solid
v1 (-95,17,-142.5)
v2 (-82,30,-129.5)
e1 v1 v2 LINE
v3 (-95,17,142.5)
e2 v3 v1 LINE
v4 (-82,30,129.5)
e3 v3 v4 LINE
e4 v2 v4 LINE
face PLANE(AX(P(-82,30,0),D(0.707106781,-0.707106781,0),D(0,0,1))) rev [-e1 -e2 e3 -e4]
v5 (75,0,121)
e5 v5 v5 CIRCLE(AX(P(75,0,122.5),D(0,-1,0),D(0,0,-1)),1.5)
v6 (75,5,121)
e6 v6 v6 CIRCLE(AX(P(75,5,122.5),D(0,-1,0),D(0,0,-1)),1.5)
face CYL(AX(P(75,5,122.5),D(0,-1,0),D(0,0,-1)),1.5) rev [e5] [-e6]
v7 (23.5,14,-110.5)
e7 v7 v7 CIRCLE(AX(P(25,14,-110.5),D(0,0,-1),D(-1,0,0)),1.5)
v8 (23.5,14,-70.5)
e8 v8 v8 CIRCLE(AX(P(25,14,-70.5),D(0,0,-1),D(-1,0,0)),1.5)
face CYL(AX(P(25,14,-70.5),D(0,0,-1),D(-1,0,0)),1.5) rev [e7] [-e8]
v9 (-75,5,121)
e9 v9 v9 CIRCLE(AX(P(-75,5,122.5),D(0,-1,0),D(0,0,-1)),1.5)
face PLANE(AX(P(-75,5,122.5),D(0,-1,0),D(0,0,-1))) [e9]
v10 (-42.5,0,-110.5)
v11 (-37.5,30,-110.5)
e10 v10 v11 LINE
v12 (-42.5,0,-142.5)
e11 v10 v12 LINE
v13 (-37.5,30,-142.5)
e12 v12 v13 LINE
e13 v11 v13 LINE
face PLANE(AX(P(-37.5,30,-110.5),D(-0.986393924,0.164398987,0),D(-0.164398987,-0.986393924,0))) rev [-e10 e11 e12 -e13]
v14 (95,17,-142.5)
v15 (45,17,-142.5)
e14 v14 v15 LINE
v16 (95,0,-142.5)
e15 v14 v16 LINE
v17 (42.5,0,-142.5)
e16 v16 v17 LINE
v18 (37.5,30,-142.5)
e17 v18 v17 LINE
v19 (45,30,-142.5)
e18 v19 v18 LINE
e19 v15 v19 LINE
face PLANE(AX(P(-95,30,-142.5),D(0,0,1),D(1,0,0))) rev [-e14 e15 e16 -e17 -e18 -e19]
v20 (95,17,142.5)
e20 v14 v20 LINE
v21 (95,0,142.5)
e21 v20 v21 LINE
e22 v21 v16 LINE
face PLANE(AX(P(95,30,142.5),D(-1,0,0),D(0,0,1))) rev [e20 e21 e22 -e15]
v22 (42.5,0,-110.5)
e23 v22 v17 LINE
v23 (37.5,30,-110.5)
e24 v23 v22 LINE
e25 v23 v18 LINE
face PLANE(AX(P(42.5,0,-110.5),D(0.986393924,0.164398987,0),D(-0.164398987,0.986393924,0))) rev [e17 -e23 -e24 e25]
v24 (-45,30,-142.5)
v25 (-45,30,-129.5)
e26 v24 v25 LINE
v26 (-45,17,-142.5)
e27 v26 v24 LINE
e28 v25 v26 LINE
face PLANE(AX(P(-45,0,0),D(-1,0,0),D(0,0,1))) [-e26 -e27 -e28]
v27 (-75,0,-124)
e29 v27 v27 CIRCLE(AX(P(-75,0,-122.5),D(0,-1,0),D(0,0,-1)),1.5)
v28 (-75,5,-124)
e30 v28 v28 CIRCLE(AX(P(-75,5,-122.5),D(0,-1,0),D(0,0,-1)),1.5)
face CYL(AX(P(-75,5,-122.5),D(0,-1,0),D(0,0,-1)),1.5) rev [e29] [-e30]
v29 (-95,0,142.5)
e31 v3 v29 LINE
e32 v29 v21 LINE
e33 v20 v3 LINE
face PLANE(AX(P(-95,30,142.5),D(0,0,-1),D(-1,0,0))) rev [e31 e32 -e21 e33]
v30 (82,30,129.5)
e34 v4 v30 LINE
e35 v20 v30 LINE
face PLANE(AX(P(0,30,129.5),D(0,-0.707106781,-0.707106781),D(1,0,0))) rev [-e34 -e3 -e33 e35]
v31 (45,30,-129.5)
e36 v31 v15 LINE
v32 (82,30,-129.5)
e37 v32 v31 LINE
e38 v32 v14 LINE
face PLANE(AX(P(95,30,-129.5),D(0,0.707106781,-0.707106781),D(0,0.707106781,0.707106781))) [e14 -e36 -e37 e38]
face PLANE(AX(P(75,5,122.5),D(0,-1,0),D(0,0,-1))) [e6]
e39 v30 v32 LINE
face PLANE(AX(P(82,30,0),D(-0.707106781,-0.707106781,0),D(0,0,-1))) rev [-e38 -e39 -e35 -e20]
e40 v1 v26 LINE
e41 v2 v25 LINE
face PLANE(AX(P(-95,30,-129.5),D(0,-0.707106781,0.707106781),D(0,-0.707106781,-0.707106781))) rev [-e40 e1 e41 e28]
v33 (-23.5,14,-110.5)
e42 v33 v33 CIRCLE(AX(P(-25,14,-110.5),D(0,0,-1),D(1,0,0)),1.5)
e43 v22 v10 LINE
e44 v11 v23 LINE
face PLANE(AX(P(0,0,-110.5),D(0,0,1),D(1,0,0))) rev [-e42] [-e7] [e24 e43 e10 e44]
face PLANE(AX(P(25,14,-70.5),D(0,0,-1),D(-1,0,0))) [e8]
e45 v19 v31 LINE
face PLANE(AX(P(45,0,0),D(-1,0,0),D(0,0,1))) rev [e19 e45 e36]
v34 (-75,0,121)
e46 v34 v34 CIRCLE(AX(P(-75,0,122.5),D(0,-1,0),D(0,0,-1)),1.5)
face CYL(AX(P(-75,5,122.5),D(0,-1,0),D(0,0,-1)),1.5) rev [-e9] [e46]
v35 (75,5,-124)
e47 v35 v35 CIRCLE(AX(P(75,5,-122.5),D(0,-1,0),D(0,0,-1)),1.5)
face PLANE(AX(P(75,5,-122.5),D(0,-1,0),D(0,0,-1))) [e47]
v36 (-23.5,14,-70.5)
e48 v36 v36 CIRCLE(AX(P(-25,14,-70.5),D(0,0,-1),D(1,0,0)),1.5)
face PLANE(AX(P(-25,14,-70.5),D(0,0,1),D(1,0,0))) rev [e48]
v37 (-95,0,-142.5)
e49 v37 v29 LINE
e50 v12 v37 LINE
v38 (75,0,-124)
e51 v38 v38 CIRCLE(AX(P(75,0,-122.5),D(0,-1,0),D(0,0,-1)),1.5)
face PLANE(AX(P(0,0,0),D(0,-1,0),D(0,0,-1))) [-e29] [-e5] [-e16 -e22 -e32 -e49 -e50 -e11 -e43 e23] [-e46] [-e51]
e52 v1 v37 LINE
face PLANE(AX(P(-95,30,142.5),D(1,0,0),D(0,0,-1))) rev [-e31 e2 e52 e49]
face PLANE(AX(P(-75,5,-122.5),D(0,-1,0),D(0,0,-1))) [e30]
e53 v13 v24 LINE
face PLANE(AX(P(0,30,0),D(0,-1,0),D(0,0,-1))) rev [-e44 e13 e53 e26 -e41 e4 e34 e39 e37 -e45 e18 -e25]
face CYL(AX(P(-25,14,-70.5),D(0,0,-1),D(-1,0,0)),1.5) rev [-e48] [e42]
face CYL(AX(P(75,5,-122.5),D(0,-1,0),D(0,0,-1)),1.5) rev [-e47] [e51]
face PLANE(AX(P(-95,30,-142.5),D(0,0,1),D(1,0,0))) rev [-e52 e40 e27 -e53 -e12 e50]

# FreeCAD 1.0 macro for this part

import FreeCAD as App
import Part
import Sketcher
from FreeCAD import Vector
Q = App.Units.Quantity


def edges_at(feature, points):
    """Names of the edges that pass closest to the given points."""
    edges = feature.Shape.Edges
    near = lambda p: min(range(len(edges)), key=lambda i: edges[i].distToShape(Part.Vertex(*p))[0])
    return sorted({f"Edge{near(p) + 1}" for p in points})


def add_polygon(sketch, points):
    """Adds a closed chain of lines whose ends are joined by coincident constraints."""
    first, n = sketch.GeometryCount, len(points)
    for a, b in zip(points, points[1:] + points[:1]):
        sketch.addGeometry(Part.LineSegment(App.Vector(*a, 0), App.Vector(*b, 0)), False)
    for i in range(n):
        sketch.addConstraint(Sketcher.Constraint("Coincident", first + i, 2, first + (i + 1) % n, 1))

doc = App.newDocument("Part")
params = doc.addObject("Spreadsheet::Sheet", "Params")
for row, (alias, value) in enumerate([
    ("sketch1_width", "190 mm"),
    ("sketch1_height", "285 mm"),
    ("pad1_length", "30 mm"),
    ("sketch2_width", "75 mm"),
    ("sketch2_width2", "85 mm"),
    ("pocket1_length", "32 mm"),
    ("sketch3_diameter", "3 mm"),
    ("pocket2_length", "40 mm"),
    ("sketch4_width", "13 mm"),
    ("sketch5_width", "13 mm"),
    ("chamfer_size", "13 mm"),
    ("sketch6_diameter", "3 mm"),
    ("pocket5_length", "5 mm"),
], start=1):
    params.set(f"A{row}", alias)
    params.set(f"B{row}", "=" + value)
    params.setAlias(f"B{row}", alias)

body = doc.addObject("PartDesign::Body", "Body")

sketch1 = body.newObject("Sketcher::SketchObject", "Sketch")
sketch1.AttachmentSupport = (doc.getObject("XZ_Plane"), [""])
sketch1.MapMode = "FlatFace"
add_polygon(sketch1, [(-95, -142), (-95, 142), (95, 142), (95, -142)])
sketch1.addConstraint(Sketcher.Constraint("Vertical", 0))
sketch1.addConstraint(Sketcher.Constraint("Horizontal", 1))
sketch1.addConstraint(Sketcher.Constraint("Vertical", 2))
sketch1.addConstraint(Sketcher.Constraint("Horizontal", 3))
sketch1.addConstraint(Sketcher.Constraint("Symmetric", 0, 2, 2, 2, -1, 1))
sketch1.addConstraint(Sketcher.Constraint("DistanceX", 1, 1, 1, 2, Q("190 mm")))
sketch1.addConstraint(Sketcher.Constraint("DistanceY", 0, 1, 0, 2, Q("285 mm")))
sketch1.setExpression("Constraints[9]", "Params.sketch1_width")
sketch1.setExpression("Constraints[10]", "Params.sketch1_height")
pad1 = body.newObject("PartDesign::Pad", "Pad")
pad1.Profile = sketch1
pad1.setExpression("Length", "Params.pad1_length")
pad1.Reversed = True

sketch2 = body.newObject("Sketcher::SketchObject", "Sketch001")
sketch2.AttachmentSupport = (doc.getObject("XY_Plane"), [""])
sketch2.MapMode = "FlatFace"
sketch2.AttachmentOffset = App.Placement(Vector(0, 0, -142.5), App.Rotation())
add_polygon(sketch2, [(-38, 30), (38, 30), (42, 0), (-42, 0)])
sketch2.addConstraint(Sketcher.Constraint("Horizontal", 0))
sketch2.addConstraint(Sketcher.Constraint("Horizontal", 2))
sketch2.addConstraint(Sketcher.Constraint("Symmetric", 1, 2, 2, 2, -1, 1))
sketch2.addConstraint(Sketcher.Constraint("Equal", 1, 3))
sketch2.addConstraint(Sketcher.Constraint("DistanceX", 0, 1, 0, 2, Q("75 mm")))
sketch2.addConstraint(Sketcher.Constraint("DistanceX", 2, 2, 2, 1, Q("85 mm")))
sketch2.addConstraint(Sketcher.Constraint("DistanceY", -1, 1, 0, 2, Q("30 mm")))
sketch2.setExpression("Constraints[8]", "Params.sketch2_width")
sketch2.setExpression("Constraints[9]", "Params.sketch2_width2")
pocket1 = body.newObject("PartDesign::Pocket", "Pocket")
pocket1.Profile = sketch2
pocket1.setExpression("Length", "Params.pocket1_length")
pocket1.Reversed = True

sketch3 = body.newObject("Sketcher::SketchObject", "Sketch002")
sketch3.AttachmentSupport = (doc.getObject("XY_Plane"), [""])
sketch3.MapMode = "FlatFace"
sketch3.AttachmentOffset = App.Placement(Vector(0, 0, -110.5), App.Rotation())
sketch3.addGeometry(Part.Circle(Vector(25, 14, 0), Vector(0, 0, 1), 1.5), False)
sketch3.addGeometry(Part.Circle(Vector(-25, 14, 0), Vector(0, 0, 1), 1.5), False)
sketch3.addConstraint(Sketcher.Constraint("Equal", 0, 1))
sketch3.addConstraint(Sketcher.Constraint("Symmetric", 0, 3, 1, 3, -2))
sketch3.addConstraint(Sketcher.Constraint("Diameter", 0, Q("3 mm")))
sketch3.addConstraint(Sketcher.Constraint("DistanceX", -1, 1, 0, 3, Q("25 mm")))
sketch3.addConstraint(Sketcher.Constraint("DistanceY", -1, 1, 0, 3, Q("14 mm")))
sketch3.setExpression("Constraints[2]", "Params.sketch3_diameter")
pocket2 = body.newObject("PartDesign::Pocket", "Pocket001")
pocket2.Profile = sketch3
pocket2.setExpression("Length", "Params.pocket2_length")
pocket2.Reversed = True

sketch4 = body.newObject("Sketcher::SketchObject", "Sketch003")
sketch4.AttachmentSupport = (doc.getObject("YZ_Plane"), [""])
sketch4.MapMode = "FlatFace"
sketch4.AttachmentOffset = App.Placement(Vector(0, 0, 45), App.Rotation())
add_polygon(sketch4, [(30, -130), (17, -142), (30, -142)])
sketch4.addConstraint(Sketcher.Constraint("Horizontal", 1))
sketch4.addConstraint(Sketcher.Constraint("Vertical", 2))
sketch4.addConstraint(Sketcher.Constraint("Equal", 1, 2))
sketch4.addConstraint(Sketcher.Constraint("DistanceX", 1, 1, 1, 2, Q("13 mm")))
sketch4.addConstraint(Sketcher.Constraint("DistanceX", -1, 1, 0, 2, Q("17 mm")))
sketch4.addConstraint(Sketcher.Constraint("DistanceY", 0, 2, -1, 1, Q("142.5 mm")))
sketch4.setExpression("Constraints[6]", "Params.sketch4_width")
pocket3 = body.newObject("PartDesign::Pocket", "Pocket002")
pocket3.Profile = sketch4
pocket3.Type = "ThroughAll"
pocket3.Reversed = True

sketch5 = body.newObject("Sketcher::SketchObject", "Sketch004")
sketch5.AttachmentSupport = (doc.getObject("YZ_Plane"), [""])
sketch5.MapMode = "FlatFace"
sketch5.AttachmentOffset = App.Placement(Vector(0, 0, -45), App.Rotation())
add_polygon(sketch5, [(30, -130), (17, -142), (30, -142)])
sketch5.addConstraint(Sketcher.Constraint("Horizontal", 1))
sketch5.addConstraint(Sketcher.Constraint("Vertical", 2))
sketch5.addConstraint(Sketcher.Constraint("Equal", 1, 2))
sketch5.addConstraint(Sketcher.Constraint("DistanceX", 1, 1, 1, 2, Q("13 mm")))
sketch5.addConstraint(Sketcher.Constraint("DistanceX", -1, 1, 0, 2, Q("17 mm")))
sketch5.addConstraint(Sketcher.Constraint("DistanceY", 0, 2, -1, 1, Q("142.5 mm")))
sketch5.setExpression("Constraints[6]", "Params.sketch5_width")
pocket4 = body.newObject("PartDesign::Pocket", "Pocket003")
pocket4.Profile = sketch5
pocket4.Type = "ThroughAll"
doc.recompute()

chamfer = body.newObject("PartDesign::Chamfer", "Chamfer")
chamfer.Base = (pocket4, edges_at(pocket4, [(-95, 30, 6.5), (0, 30, 142.5), (95, 30, 6.5)]))
chamfer.setExpression("Size", "Params.chamfer_size")

sketch6 = body.newObject("Sketcher::SketchObject", "Sketch005")
sketch6.AttachmentSupport = (doc.getObject("XZ_Plane"), [""])
sketch6.MapMode = "FlatFace"
sketch6.addGeometry(Part.Circle(Vector(-75, 122.5, 0), Vector(0, 0, 1), 1.5), False)
sketch6.addGeometry(Part.Circle(Vector(75, 122.5, 0), Vector(0, 0, 1), 1.5), False)
sketch6.addGeometry(Part.Circle(Vector(-75, -122.5, 0), Vector(0, 0, 1), 1.5), False)
sketch6.addGeometry(Part.Circle(Vector(75, -122.5, 0), Vector(0, 0, 1), 1.5), False)
sketch6.addConstraint(Sketcher.Constraint("Equal", 0, 1))
sketch6.addConstraint(Sketcher.Constraint("Equal", 1, 2))
sketch6.addConstraint(Sketcher.Constraint("Equal", 2, 3))
sketch6.addConstraint(Sketcher.Constraint("Symmetric", 1, 3, 2, 3, -1, 1))
sketch6.addConstraint(Sketcher.Constraint("Symmetric", 0, 3, 3, 3, -1, 1))
sketch6.addConstraint(Sketcher.Constraint("Symmetric", 0, 3, 1, 3, -2))
sketch6.addConstraint(Sketcher.Constraint("Diameter", 0, Q("3 mm")))
sketch6.addConstraint(Sketcher.Constraint("DistanceX", 0, 3, -1, 1, Q("75 mm")))
sketch6.addConstraint(Sketcher.Constraint("DistanceY", 2, 3, 0, 3, Q("245 mm")))
sketch6.setExpression("Constraints[6]", "Params.sketch6_diameter")
pocket5 = body.newObject("PartDesign::Pocket", "Pocket004")
pocket5.Profile = sketch6
pocket5.setExpression("Length", "Params.pocket5_length")

doc.recompute()
